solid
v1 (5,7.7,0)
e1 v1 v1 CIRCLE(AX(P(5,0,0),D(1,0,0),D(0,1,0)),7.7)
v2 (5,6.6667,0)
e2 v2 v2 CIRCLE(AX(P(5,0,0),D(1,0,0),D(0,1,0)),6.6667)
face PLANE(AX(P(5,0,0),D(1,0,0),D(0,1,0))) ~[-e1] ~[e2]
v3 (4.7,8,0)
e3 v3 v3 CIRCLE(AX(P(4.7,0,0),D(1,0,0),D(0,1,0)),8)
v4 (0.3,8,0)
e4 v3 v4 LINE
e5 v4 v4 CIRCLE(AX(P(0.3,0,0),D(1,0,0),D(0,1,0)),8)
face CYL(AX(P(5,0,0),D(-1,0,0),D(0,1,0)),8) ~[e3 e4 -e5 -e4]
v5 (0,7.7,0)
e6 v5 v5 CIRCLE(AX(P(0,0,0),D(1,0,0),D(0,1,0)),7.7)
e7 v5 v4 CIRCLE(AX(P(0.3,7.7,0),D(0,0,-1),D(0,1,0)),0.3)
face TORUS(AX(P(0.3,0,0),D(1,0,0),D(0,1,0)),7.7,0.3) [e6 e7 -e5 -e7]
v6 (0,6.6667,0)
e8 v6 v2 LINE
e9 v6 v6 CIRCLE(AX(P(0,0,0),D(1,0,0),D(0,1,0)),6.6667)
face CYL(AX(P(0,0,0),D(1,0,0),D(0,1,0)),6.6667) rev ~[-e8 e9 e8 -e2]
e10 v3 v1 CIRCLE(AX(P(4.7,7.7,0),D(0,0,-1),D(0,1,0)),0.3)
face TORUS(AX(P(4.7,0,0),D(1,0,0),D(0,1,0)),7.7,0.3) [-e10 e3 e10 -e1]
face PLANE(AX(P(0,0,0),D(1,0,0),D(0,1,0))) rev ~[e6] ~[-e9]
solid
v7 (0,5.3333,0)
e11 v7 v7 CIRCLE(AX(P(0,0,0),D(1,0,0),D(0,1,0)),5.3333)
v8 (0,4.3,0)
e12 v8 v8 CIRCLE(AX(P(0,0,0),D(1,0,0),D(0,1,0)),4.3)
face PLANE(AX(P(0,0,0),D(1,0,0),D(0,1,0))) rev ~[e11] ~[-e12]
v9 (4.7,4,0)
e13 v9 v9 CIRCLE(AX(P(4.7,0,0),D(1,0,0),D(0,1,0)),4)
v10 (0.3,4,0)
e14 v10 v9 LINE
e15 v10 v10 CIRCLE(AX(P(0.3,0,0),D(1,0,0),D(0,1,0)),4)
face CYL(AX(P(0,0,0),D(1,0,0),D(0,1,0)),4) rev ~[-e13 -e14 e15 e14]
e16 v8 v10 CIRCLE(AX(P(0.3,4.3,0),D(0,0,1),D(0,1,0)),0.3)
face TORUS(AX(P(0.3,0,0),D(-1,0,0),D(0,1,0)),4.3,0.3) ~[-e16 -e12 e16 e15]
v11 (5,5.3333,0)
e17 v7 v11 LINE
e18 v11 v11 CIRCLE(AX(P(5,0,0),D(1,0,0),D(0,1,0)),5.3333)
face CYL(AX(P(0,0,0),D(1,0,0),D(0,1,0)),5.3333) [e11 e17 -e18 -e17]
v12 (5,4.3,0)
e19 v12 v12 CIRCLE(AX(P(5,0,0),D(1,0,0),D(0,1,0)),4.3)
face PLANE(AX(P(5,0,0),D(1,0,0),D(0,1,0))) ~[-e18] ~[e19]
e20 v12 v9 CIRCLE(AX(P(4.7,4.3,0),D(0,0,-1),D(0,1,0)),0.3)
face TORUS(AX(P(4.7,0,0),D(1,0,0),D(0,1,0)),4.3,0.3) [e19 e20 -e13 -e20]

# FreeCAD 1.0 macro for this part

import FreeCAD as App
import Part
import Sketcher
from FreeCAD import Vector


def edges_at(feature, points):
    """Names of the edges that pass closest to the given points."""
    edges = feature.Shape.Edges
    near = lambda p: min(range(len(edges)), key=lambda i: edges[i].distToShape(Part.Vertex(*p))[0])
    return sorted({f"Edge{near(p) + 1}" for p in points})

doc = App.newDocument("Part")
body = doc.addObject("PartDesign::Body", "Body")
body.AllowCompound = True

# Sketch on XY plane
sketch1 = body.newObject("Sketcher::SketchObject", "Sketch")
sketch1.AttachmentSupport = (doc.getObject("XY_Plane"), [""])
sketch1.MapMode = "FlatFace"
sketch1.addGeometry([
    Part.LineSegment(Vector(0, 5.3, 0), Vector(0, 4, 0)),  # 0
    Part.LineSegment(Vector(0, 4, 0), Vector(5, 4, 0)),  # 1
    Part.LineSegment(Vector(5, 4, 0), Vector(5, 5.3, 0)),  # 2
    Part.LineSegment(Vector(5, 5.3, 0), Vector(0, 5.3, 0)),  # 3
    Part.LineSegment(Vector(0, 8, 0), Vector(0, 6.7, 0)),  # 4
    Part.LineSegment(Vector(0, 6.7, 0), Vector(5, 6.7, 0)),  # 5
    Part.LineSegment(Vector(5, 6.7, 0), Vector(5, 8, 0)),  # 6
    Part.LineSegment(Vector(5, 8, 0), Vector(0, 8, 0)),  # 7
], False)
sketch1.addConstraint([
    Sketcher.Constraint("Coincident", 0, 2, 1, 1),
    Sketcher.Constraint("Coincident", 1, 2, 2, 1),
    Sketcher.Constraint("Coincident", 2, 2, 3, 1),
    Sketcher.Constraint("Coincident", 3, 2, 0, 1),
    Sketcher.Constraint("Coincident", 4, 2, 5, 1),
    Sketcher.Constraint("Coincident", 5, 2, 6, 1),
    Sketcher.Constraint("Coincident", 6, 2, 7, 1),
    Sketcher.Constraint("Coincident", 7, 2, 4, 1),
    Sketcher.Constraint("Vertical", 0),
    Sketcher.Constraint("Horizontal", 1),
    Sketcher.Constraint("Vertical", 2),
    Sketcher.Constraint("Horizontal", 3),
    Sketcher.Constraint("Vertical", 4),
    Sketcher.Constraint("Horizontal", 5),
    Sketcher.Constraint("Vertical", 6),
    Sketcher.Constraint("Horizontal", 7),
    Sketcher.Constraint("PointOnObject", 0, 2, -2),
    Sketcher.Constraint("PointOnObject", 4, 2, -2),
    Sketcher.Constraint("Vertical", 2, 2, 5, 2),
    Sketcher.Constraint("Equal", 2, 4),
    Sketcher.Constraint("DistanceX", 1, 1, 1, 2, 5.0),
    Sketcher.Constraint("DistanceY", -1, 1, 6, 2, 8.0),
    Sketcher.Constraint("DistanceY", -1, 1, 0, 2, 4.0),
    Sketcher.Constraint("DistanceY", 0, 2, 0, 1, 1.3333),
])
revolution = body.newObject("PartDesign::Revolution", "Revolution")
revolution.Profile = sketch1
revolution.ReferenceAxis = (sketch1, ["H_Axis"])
revolution.Angle = 360
doc.recompute()

fillet = body.newObject("PartDesign::Fillet", "Fillet")
fillet.Base = (revolution, edges_at(revolution, [
    (0, -8, 0),
    (5, -8, 0),
    (0, -4, 0),
    (5, -4, 0),
]))
fillet.Radius = 0.3

doc.recompute()
